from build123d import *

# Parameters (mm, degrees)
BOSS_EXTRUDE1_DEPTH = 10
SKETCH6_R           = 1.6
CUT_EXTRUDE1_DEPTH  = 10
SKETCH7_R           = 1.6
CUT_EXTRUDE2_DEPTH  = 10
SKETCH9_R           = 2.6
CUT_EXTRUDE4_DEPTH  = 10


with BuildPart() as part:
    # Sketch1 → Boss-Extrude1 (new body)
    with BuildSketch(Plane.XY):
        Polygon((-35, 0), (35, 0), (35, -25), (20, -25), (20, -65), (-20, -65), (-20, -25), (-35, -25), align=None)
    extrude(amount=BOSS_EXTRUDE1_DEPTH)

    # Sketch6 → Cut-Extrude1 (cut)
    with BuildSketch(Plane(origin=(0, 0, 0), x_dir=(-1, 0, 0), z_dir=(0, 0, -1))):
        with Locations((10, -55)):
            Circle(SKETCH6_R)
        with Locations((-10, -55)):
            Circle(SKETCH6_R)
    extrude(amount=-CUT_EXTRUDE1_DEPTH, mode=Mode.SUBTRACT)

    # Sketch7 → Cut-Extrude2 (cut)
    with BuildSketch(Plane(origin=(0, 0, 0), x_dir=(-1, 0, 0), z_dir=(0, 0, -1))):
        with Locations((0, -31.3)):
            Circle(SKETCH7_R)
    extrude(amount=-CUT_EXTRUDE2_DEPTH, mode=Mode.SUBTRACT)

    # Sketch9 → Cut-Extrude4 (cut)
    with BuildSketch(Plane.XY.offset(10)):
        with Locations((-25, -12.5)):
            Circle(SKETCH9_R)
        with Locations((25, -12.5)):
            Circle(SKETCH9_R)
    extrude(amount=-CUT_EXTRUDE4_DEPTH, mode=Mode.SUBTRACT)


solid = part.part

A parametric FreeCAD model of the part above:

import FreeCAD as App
import Part
import Sketcher

V = App.Vector
Q = App.Units.Quantity

doc = App.newDocument("Part")
body = doc.addObject("PartDesign::Body", "Body")

# Sketch on XY plane
sketch1 = doc.addObject("Sketcher::SketchObject", "Sketch")
body.addObject(sketch1)
sketch1.AttachmentSupport = (doc.XY_Plane, [""])
sketch1.MapMode = "FlatFace"
sketch1.addGeometry(Part.LineSegment(V(35, 0, 0), V(-35, 0, 0)), False)
sketch1.addGeometry(Part.LineSegment(V(-35, 0, 0), V(-35, -25, 0)), False)
sketch1.addGeometry(Part.LineSegment(V(-35, -25, 0), V(-20, -25, 0)), False)
sketch1.addGeometry(Part.LineSegment(V(-20, -25, 0), V(-20, -65, 0)), False)
sketch1.addGeometry(Part.LineSegment(V(-20, -65, 0), V(20, -65, 0)), False)
sketch1.addGeometry(Part.LineSegment(V(20, -65, 0), V(20, -25, 0)), False)
sketch1.addGeometry(Part.LineSegment(V(20, -25, 0), V(35, -25, 0)), False)
sketch1.addGeometry(Part.LineSegment(V(35, -25, 0), V(35, 0, 0)), False)
sketch1.addConstraint(Sketcher.Constraint("Coincident", 0, 2, 1, 1))
sketch1.addConstraint(Sketcher.Constraint("Coincident", 1, 2, 2, 1))
sketch1.addConstraint(Sketcher.Constraint("Coincident", 2, 2, 3, 1))
sketch1.addConstraint(Sketcher.Constraint("Coincident", 3, 2, 4, 1))
sketch1.addConstraint(Sketcher.Constraint("Coincident", 4, 2, 5, 1))
sketch1.addConstraint(Sketcher.Constraint("Coincident", 5, 2, 6, 1))
sketch1.addConstraint(Sketcher.Constraint("Coincident", 6, 2, 7, 1))
sketch1.addConstraint(Sketcher.Constraint("Coincident", 7, 2, 0, 1))
sketch1.addConstraint(Sketcher.Constraint("Horizontal", 0))
sketch1.addConstraint(Sketcher.Constraint("Vertical", 1))
sketch1.addConstraint(Sketcher.Constraint("Horizontal", 2))
sketch1.addConstraint(Sketcher.Constraint("Vertical", 3))
sketch1.addConstraint(Sketcher.Constraint("Horizontal", 4))
sketch1.addConstraint(Sketcher.Constraint("Vertical", 5))
sketch1.addConstraint(Sketcher.Constraint("Horizontal", 6))
sketch1.addConstraint(Sketcher.Constraint("Vertical", 7))
sketch1.addConstraint(Sketcher.Constraint("Symmetric", 0, 2, 7, 2, -1, 1))
sketch1.addConstraint(Sketcher.Constraint("Symmetric", 2, 2, 5, 2, -2))
sketch1.addConstraint(Sketcher.Constraint("Equal", 4, 3))
sketch1.addConstraint(Sketcher.Constraint("DistanceX", 0, 2, 0, 1, Q("70 mm")))
sketch1.addConstraint(Sketcher.Constraint("DistanceX", 2, 1, 2, 2, Q("15 mm")))
sketch1.addConstraint(Sketcher.Constraint("DistanceY", 1, 2, 1, 1, Q("25 mm")))
pad1 = doc.addObject("PartDesign::Pad", "Pad")
body.addObject(pad1)
pad1.Profile = sketch1
pad1.Length = 10

# Sketch on XY plane
sketch2 = doc.addObject("Sketcher::SketchObject", "Sketch001")
body.addObject(sketch2)
sketch2.AttachmentSupport = (doc.XY_Plane, [""])
sketch2.MapMode = "FlatFace"
sketch2.addGeometry(Part.Circle(V(-10, -55, 0), V(0, 0, 1), 1.6), False)
sketch2.addGeometry(Part.Circle(V(10, -55, 0), V(0, 0, 1), 1.6), False)
sketch2.addConstraint(Sketcher.Constraint("Equal", 0, 1))
sketch2.addConstraint(Sketcher.Constraint("Symmetric", 0, 3, 1, 3, -2))
sketch2.addConstraint(Sketcher.Constraint("Diameter", 0, Q("3.2 mm")))
sketch2.addConstraint(Sketcher.Constraint("DistanceX", 0, 3, -1, 1, Q("10 mm")))
sketch2.addConstraint(Sketcher.Constraint("DistanceY", 0, 3, -1, 1, Q("55 mm")))
pocket1 = doc.addObject("PartDesign::Pocket", "Pocket")
body.addObject(pocket1)
pocket1.Profile = sketch2
pocket1.Length = 10
pocket1.Reversed = True

# Sketch on XY plane
sketch3 = doc.addObject("Sketcher::SketchObject", "Sketch002")
body.addObject(sketch3)
sketch3.AttachmentSupport = (doc.XY_Plane, [""])
sketch3.MapMode = "FlatFace"
sketch3.addGeometry(Part.Circle(V(0, -31.3, 0), V(0, 0, 1), 1.6), False)
sketch3.addConstraint(Sketcher.Constraint("PointOnObject", 0, 3, -2))
sketch3.addConstraint(Sketcher.Constraint("Diameter", 0, Q("3.2 mm")))
sketch3.addConstraint(Sketcher.Constraint("DistanceY", 0, 3, -1, 1, Q("31.3 mm")))
pocket2 = doc.addObject("PartDesign::Pocket", "Pocket001")
body.addObject(pocket2)
pocket2.Profile = sketch3
pocket2.Length = 10
pocket2.Reversed = True

# Sketch on XY plane
sketch4 = doc.addObject("Sketcher::SketchObject", "Sketch003")
body.addObject(sketch4)
sketch4.AttachmentSupport = (doc.XY_Plane, [""])
sketch4.MapMode = "FlatFace"
sketch4.AttachmentOffset = App.Placement(V(0, 0, 10), App.Rotation())
sketch4.addGeometry(Part.Circle(V(-25, -12.5, 0), V(0, 0, 1), 2.6), False)
sketch4.addGeometry(Part.Circle(V(25, -12.5, 0), V(0, 0, 1), 2.6), False)
sketch4.addConstraint(Sketcher.Constraint("Equal", 0, 1))
sketch4.addConstraint(Sketcher.Constraint("Symmetric", 0, 3, 1, 3, -2))
sketch4.addConstraint(Sketcher.Constraint("Diameter", 0, Q("5.2 mm")))
sketch4.addConstraint(Sketcher.Constraint("DistanceX", 0, 3, -1, 1, Q("25 mm")))
sketch4.addConstraint(Sketcher.Constraint("DistanceY", 0, 3, -1, 1, Q("12.5 mm")))
pocket3 = doc.addObject("PartDesign::Pocket", "Pocket002")
body.addObject(pocket3)
pocket3.Profile = sketch4
pocket3.Length = 10

doc.recompute()
